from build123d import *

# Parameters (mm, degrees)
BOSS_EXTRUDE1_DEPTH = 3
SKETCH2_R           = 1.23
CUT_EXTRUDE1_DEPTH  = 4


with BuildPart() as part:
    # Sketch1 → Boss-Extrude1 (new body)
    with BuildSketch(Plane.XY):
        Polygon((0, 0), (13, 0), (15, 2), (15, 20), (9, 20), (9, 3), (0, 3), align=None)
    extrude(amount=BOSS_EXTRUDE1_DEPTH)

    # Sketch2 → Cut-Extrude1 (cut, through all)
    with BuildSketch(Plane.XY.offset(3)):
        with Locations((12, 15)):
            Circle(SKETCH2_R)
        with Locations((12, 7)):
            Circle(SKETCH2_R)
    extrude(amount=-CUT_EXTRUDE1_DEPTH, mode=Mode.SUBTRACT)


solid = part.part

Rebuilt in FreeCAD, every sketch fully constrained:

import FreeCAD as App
import Part
import Sketcher
from FreeCAD import Vector


def add_polygon(sketch, points):
    """Adds a closed chain of lines whose ends are joined by coincident constraints."""
    first, n = sketch.GeometryCount, len(points)
    for a, b in zip(points, points[1:] + points[:1]):
        sketch.addGeometry(Part.LineSegment(App.Vector(*a, 0), App.Vector(*b, 0)), False)
    for i in range(n):
        sketch.addConstraint(Sketcher.Constraint("Coincident", first + i, 2, first + (i + 1) % n, 1))

doc = App.newDocument("Part")
body = doc.addObject("PartDesign::Body", "Body")

sketch1 = doc.addObject("Sketcher::SketchObject", "Sketch")
body.addObject(sketch1)
sketch1.AttachmentSupport = (doc.XY_Plane, [""])
sketch1.MapMode = "FlatFace"
add_polygon(sketch1, [(0, 0), (13, 0), (15, 2), (15, 20), (9, 20), (9, 3), (0, 3)])
sketch1.addConstraint(Sketcher.Constraint("Horizontal", 0))
sketch1.addConstraint(Sketcher.Constraint("Vertical", 2))
sketch1.addConstraint(Sketcher.Constraint("Horizontal", 3))
sketch1.addConstraint(Sketcher.Constraint("Vertical", 4))
sketch1.addConstraint(Sketcher.Constraint("Horizontal", 5))
sketch1.addConstraint(Sketcher.Constraint("Vertical", 6))
sketch1.addConstraint(Sketcher.Constraint("Coincident", 6, 2, -1, 1))
sketch1.addConstraint(Sketcher.Constraint("DistanceX", 0, 1, 0, 2, 13.0))
sketch1.addConstraint(Sketcher.Constraint("DistanceX", 3, 2, 3, 1, 6.0))
sketch1.addConstraint(Sketcher.Constraint("DistanceX", 5, 2, 5, 1, 9.0))
sketch1.addConstraint(Sketcher.Constraint("DistanceY", 2, 1, 2, 2, 18.0))
sketch1.addConstraint(Sketcher.Constraint("DistanceY", 4, 2, 4, 1, 17.0))
sketch1.addConstraint(Sketcher.Constraint("DistanceY", 6, 2, 6, 1, 3.0))
pad1 = doc.addObject("PartDesign::Pad", "Pad")
body.addObject(pad1)
pad1.Profile = sketch1
pad1.Length = 3

sketch2 = doc.addObject("Sketcher::SketchObject", "Sketch001")
body.addObject(sketch2)
sketch2.AttachmentSupport = (doc.XY_Plane, [""])
sketch2.MapMode = "FlatFace"
sketch2.AttachmentOffset = App.Placement(Vector(0, 0, 3), App.Rotation())
sketch2.addGeometry(Part.Circle(Vector(12, 15, 0), Vector(0, 0, 1), 1.2), False)
sketch2.addGeometry(Part.Circle(Vector(12, 7, 0), Vector(0, 0, 1), 1.2), False)
sketch2.addConstraint(Sketcher.Constraint("Equal", 0, 1))
sketch2.addConstraint(Sketcher.Constraint("Vertical", 0, 3, 1, 3))
sketch2.addConstraint(Sketcher.Constraint("Diameter", 0, 2.46))
sketch2.addConstraint(Sketcher.Constraint("DistanceX", -1, 1, 0, 3, 12.0))
sketch2.addConstraint(Sketcher.Constraint("DistanceY", -1, 1, 0, 3, 15.0))
sketch2.addConstraint(Sketcher.Constraint("DistanceY", -1, 1, 1, 3, 7.0))
pocket1 = doc.addObject("PartDesign::Pocket", "Pocket")
body.addObject(pocket1)
pocket1.Profile = sketch2
pocket1.Type = "ThroughAll"

doc.recompute()
